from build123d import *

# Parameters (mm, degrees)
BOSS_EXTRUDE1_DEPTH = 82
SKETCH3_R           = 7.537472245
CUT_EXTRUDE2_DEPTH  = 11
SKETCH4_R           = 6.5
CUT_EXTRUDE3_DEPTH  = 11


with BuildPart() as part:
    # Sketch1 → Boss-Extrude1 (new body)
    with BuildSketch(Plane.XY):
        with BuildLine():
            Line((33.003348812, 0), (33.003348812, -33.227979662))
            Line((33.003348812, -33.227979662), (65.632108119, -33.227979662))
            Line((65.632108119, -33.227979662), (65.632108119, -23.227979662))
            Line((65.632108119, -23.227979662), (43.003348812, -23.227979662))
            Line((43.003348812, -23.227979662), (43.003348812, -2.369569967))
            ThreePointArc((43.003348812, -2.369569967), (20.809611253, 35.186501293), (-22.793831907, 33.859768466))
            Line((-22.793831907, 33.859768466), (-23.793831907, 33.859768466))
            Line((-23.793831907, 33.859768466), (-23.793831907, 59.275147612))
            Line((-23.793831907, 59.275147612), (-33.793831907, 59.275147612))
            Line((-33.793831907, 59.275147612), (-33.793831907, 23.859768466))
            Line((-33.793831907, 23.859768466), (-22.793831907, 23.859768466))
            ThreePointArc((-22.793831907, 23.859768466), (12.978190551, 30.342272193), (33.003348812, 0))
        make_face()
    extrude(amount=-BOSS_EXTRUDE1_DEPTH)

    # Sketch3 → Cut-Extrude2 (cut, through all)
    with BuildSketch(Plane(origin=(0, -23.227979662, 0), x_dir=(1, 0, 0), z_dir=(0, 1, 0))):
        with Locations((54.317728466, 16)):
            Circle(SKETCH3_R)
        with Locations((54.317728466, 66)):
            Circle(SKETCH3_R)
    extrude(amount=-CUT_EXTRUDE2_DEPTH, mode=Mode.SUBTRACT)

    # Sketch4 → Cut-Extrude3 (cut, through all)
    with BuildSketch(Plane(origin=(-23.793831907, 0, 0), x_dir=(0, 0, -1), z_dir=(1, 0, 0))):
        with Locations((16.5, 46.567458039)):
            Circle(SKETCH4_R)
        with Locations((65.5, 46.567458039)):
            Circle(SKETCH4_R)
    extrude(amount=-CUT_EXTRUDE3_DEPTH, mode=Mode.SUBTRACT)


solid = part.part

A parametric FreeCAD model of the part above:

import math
import FreeCAD as App
import Part
import Sketcher
from FreeCAD import Vector

doc = App.newDocument("Part")
body = doc.addObject("PartDesign::Body", "Body")

sketch1 = body.newObject("Sketcher::SketchObject", "Sketch")
sketch1.AttachmentSupport = (doc.getObject("XY_Plane"), [""])
sketch1.MapMode = "FlatFace"
sketch1.addGeometry([
    Part.LineSegment(Vector(33, 0, 0), Vector(33, -33.2, 0)),
    Part.LineSegment(Vector(33, -33.2, 0), Vector(65.6, -33.2, 0)),
    Part.LineSegment(Vector(65.6, -33.2, 0), Vector(65.6, -23.2, 0)),
    Part.LineSegment(Vector(65.6, -23.2, 0), Vector(43, -23.2, 0)),
    Part.LineSegment(Vector(43, -23.2, 0), Vector(43, -2.4, 0)),
    Part.ArcOfCircle(Part.Circle(Vector(0.1, -2.4, 0), Vector(0, 0, 1), 42.9), math.radians(0), math.radians(122)),
    Part.LineSegment(Vector(-22.8, 33.9, 0), Vector(-23.8, 33.9, 0)),
    Part.LineSegment(Vector(-23.8, 33.9, 0), Vector(-23.8, 59.3, 0)),
    Part.LineSegment(Vector(-23.8, 59.3, 0), Vector(-33.8, 59.3, 0)),
    Part.LineSegment(Vector(-33.8, 59.3, 0), Vector(-33.8, 23.9, 0)),
    Part.LineSegment(Vector(-33.8, 23.9, 0), Vector(-22.8, 23.9, 0)),
    Part.ArcOfCircle(Part.Circle(Vector(0, 0, 0), Vector(0, 0, 1), 33), math.radians(0), math.radians(134)),
], False)
sketch1.addConstraint([
    Sketcher.Constraint("Coincident", 0, 2, 1, 1),
    Sketcher.Constraint("Coincident", 1, 2, 2, 1),
    Sketcher.Constraint("Coincident", 2, 2, 3, 1),
    Sketcher.Constraint("Coincident", 3, 2, 4, 1),
    Sketcher.Constraint("Tangent", 4, 2, 5, 1),
    Sketcher.Constraint("Coincident", 5, 2, 6, 1),
    Sketcher.Constraint("Coincident", 6, 2, 7, 1),
    Sketcher.Constraint("Coincident", 7, 2, 8, 1),
    Sketcher.Constraint("Coincident", 8, 2, 9, 1),
    Sketcher.Constraint("Coincident", 9, 2, 10, 1),
    Sketcher.Constraint("Coincident", 10, 2, 11, 2),
    Sketcher.Constraint("Tangent", 11, 1, 0, 1),
    Sketcher.Constraint("Vertical", 0),
    Sketcher.Constraint("Horizontal", 1),
    Sketcher.Constraint("Vertical", 2),
    Sketcher.Constraint("Horizontal", 3),
    Sketcher.Constraint("Vertical", 4),
    Sketcher.Constraint("Horizontal", 6),
    Sketcher.Constraint("Vertical", 7),
    Sketcher.Constraint("Horizontal", 8),
    Sketcher.Constraint("Vertical", 9),
    Sketcher.Constraint("Horizontal", 10),
    Sketcher.Constraint("PointOnObject", 11, 3, -1),
    Sketcher.Constraint("Vertical", 5, 2, 10, 2),
    Sketcher.Constraint("Equal", 8, 2),
    Sketcher.Constraint("Radius", 11, 33.0),
    Sketcher.Constraint("DistanceX", 6, 2, 6, 1, 1.0),
    Sketcher.Constraint("DistanceX", 8, 2, 8, 1, 10.0),
    Sketcher.Constraint("DistanceX", 0, 2, 3, 2, 10.0),
    Sketcher.Constraint("DistanceY", 9, 2, 6, 2, 10.0),
    Sketcher.Constraint("Radius", 5, 42.872916),
    Sketcher.Constraint("DistanceX", 1, 1, 1, 2, 32.628759),
    Sketcher.Constraint("DistanceY", 0, 2, 0, 1, 33.22798),
    Sketcher.Constraint("DistanceY", 4, 1, 4, 2, 20.85841),
    Sketcher.Constraint("DistanceY", 7, 1, 7, 2, 25.415379),
    Sketcher.Constraint("DistanceX", -1, 1, 11, 3, 0.003349),
])
pad1 = body.newObject("PartDesign::Pad", "Pad")
pad1.Profile = sketch1
pad1.Length = 82
pad1.Reversed = True

sketch2 = body.newObject("Sketcher::SketchObject", "Sketch001")
sketch2.AttachmentSupport = (doc.getObject("XZ_Plane"), [""])
sketch2.MapMode = "FlatFace"
sketch2.AttachmentOffset = App.Placement(Vector(0, 0, 23.22798), App.Rotation())
sketch2.addGeometry([
    Part.Circle(Vector(54, -16, 0), Vector(0, 0, 1), 8),
    Part.Circle(Vector(54, -66, 0), Vector(0, 0, 1), 8),
], False)
sketch2.addConstraint([
    Sketcher.Constraint("Equal", 0, 1),
    Sketcher.Constraint("Vertical", 0, 3, 1, 3),
    Sketcher.Constraint("DistanceY", 0, 3, -1, 1, 16.0),
    Sketcher.Constraint("DistanceY", 1, 3, -1, 1, 66.0),
    Sketcher.Constraint("Diameter", 0, 15.074944),
    Sketcher.Constraint("DistanceX", -1, 1, 0, 3, 54.317728),
])
pocket1 = body.newObject("PartDesign::Pocket", "Pocket")
pocket1.Profile = sketch2
pocket1.Type = "ThroughAll"
pocket1.Reversed = True

sketch3 = body.newObject("Sketcher::SketchObject", "Sketch002")
sketch3.AttachmentSupport = (doc.getObject("YZ_Plane"), [""])
sketch3.MapMode = "FlatFace"
sketch3.AttachmentOffset = App.Placement(Vector(0, 0, -23.793832), App.Rotation())
sketch3.addGeometry([
    Part.Circle(Vector(47, -16, 0), Vector(0, 0, 1), 6),
    Part.Circle(Vector(47, -66, 0), Vector(0, 0, 1), 6),
], False)
sketch3.addConstraint([
    Sketcher.Constraint("Equal", 0, 1),
    Sketcher.Constraint("Vertical", 0, 3, 1, 3),
    Sketcher.Constraint("Diameter", 0, 13.0),
    Sketcher.Constraint("DistanceY", 1, 3, 0, 3, 49.0),
    Sketcher.Constraint("DistanceY", 0, 3, -1, 1, 16.5),
    Sketcher.Constraint("DistanceX", -1, 1, 0, 3, 46.567458),
])
pocket2 = body.newObject("PartDesign::Pocket", "Pocket001")
pocket2.Profile = sketch3
pocket2.Type = "ThroughAll"

doc.recompute()
